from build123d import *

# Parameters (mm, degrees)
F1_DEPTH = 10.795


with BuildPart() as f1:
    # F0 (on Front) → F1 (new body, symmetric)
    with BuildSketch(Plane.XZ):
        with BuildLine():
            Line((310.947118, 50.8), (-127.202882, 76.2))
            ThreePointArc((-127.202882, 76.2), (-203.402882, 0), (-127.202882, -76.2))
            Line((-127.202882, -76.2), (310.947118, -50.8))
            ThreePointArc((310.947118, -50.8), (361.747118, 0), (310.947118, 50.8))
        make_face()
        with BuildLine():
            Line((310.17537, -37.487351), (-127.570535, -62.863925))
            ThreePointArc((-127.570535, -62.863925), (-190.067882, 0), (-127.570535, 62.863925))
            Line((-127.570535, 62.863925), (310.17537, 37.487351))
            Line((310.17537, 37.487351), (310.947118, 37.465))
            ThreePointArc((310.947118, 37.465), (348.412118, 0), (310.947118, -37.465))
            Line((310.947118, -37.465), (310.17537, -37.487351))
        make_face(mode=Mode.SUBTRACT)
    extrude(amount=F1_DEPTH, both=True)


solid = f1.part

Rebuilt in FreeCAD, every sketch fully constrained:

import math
import FreeCAD as App
import Part
import Sketcher
Q = App.Units.Quantity

doc = App.newDocument("Part")
body = doc.addObject("PartDesign::Body", "Body")

# Sketch on XZ plane
sketch1 = body.newObject("Sketcher::SketchObject", "Sketch")
sketch1.AttachmentSupport = (doc.getObject("XZ_Plane"), [""])
sketch1.MapMode = "FlatFace"
sketch1.addGeometry([
    Part.LineSegment(App.Vector(310.9, 50.8, 0), App.Vector(-127.2, 76.2, 0)),  # 0
    Part.ArcOfCircle(Part.Circle(App.Vector(-127.2, 0, 0), App.Vector(0, 0, 1), 76.2), math.radians(90), math.radians(270)),  # 1
    Part.LineSegment(App.Vector(-127.2, -76.2, 0), App.Vector(310.9, -50.8, 0)),  # 2
    Part.ArcOfCircle(Part.Circle(App.Vector(310.9, 0, 0), App.Vector(0, 0, 1), 50.8), math.radians(-90), math.radians(90)),  # 3
    Part.LineSegment(App.Vector(310.9, -37.5, 0), App.Vector(310.2, -37.5, 0)),  # 4
    Part.LineSegment(App.Vector(310.2, -37.5, 0), App.Vector(-127.6, -62.9, 0)),  # 5
    Part.ArcOfCircle(Part.Circle(App.Vector(-127.2, 0, 0), App.Vector(0, 0, 1), 62.9), math.radians(90), math.radians(270)),  # 6
    Part.LineSegment(App.Vector(-127.6, 62.9, 0), App.Vector(310.2, 37.5, 0)),  # 7
    Part.LineSegment(App.Vector(310.2, 37.5, 0), App.Vector(310.9, 37.5, 0)),  # 8
    Part.ArcOfCircle(Part.Circle(App.Vector(310.9, 0, 0), App.Vector(0, 0, 1), 37.5), math.radians(-90), math.radians(90)),  # 9
], False)
sketch1.addConstraint([
    Sketcher.Constraint("Coincident", 0, 2, 1, 1),
    Sketcher.Constraint("Coincident", 1, 2, 2, 1),
    Sketcher.Constraint("Coincident", 2, 2, 3, 1),
    Sketcher.Constraint("Coincident", 3, 2, 0, 1),
    Sketcher.Constraint("Coincident", 4, 2, 5, 1),
    Sketcher.Constraint("Coincident", 5, 2, 6, 2),
    Sketcher.Constraint("Coincident", 6, 1, 7, 1),
    Sketcher.Constraint("Coincident", 7, 2, 8, 1),
    Sketcher.Constraint("Coincident", 8, 2, 9, 2),
    Sketcher.Constraint("Coincident", 9, 1, 4, 1),
    Sketcher.Constraint("Coincident", 6, 3, 1, 3),
    Sketcher.Constraint("Coincident", 9, 3, 3, 3),
    Sketcher.Constraint("Symmetric", 0, 2, 1, 2, -1),
    Sketcher.Constraint("Symmetric", 2, 2, 3, 2, -1),
    Sketcher.Constraint("Symmetric", 4, 2, 7, 2, -1),
    Sketcher.Constraint("Parallel", 2, 5),
    Sketcher.Constraint("Parallel", 0, 7),
    Sketcher.Constraint("Vertical", 6, 3, 0, 2),
    Sketcher.Constraint("Vertical", 9, 3, 2, 2),
    Sketcher.Constraint("Vertical", 3, 2, 8, 2),
    Sketcher.Constraint("Vertical", 8, 2, 9, 1),
    Sketcher.Constraint("Radius", 1, Q("3 in")),
    Sketcher.Constraint("Radius", 3, Q("2 in")),
    Sketcher.Constraint("Radius", 6, Q("2.475 in")),
    Sketcher.Constraint("Radius", 9, Q("1.475 in")),
    Sketcher.Constraint("DistanceX", 1, 3, 3, 3, Q("17.25 in")),
    Sketcher.Constraint("DistanceY", 4, 2, 7, 2, 74.974702),
    Sketcher.Constraint("Distance", 4, 0.772072),
    Sketcher.Constraint("DistanceX", -1, 1, 3, 3, 310.947118),
])
pad1 = body.newObject("PartDesign::Pad", "Pad")
pad1.Profile = sketch1
pad1.Length = Q("0.85 in")
pad1.Midplane = True

doc.recompute()
